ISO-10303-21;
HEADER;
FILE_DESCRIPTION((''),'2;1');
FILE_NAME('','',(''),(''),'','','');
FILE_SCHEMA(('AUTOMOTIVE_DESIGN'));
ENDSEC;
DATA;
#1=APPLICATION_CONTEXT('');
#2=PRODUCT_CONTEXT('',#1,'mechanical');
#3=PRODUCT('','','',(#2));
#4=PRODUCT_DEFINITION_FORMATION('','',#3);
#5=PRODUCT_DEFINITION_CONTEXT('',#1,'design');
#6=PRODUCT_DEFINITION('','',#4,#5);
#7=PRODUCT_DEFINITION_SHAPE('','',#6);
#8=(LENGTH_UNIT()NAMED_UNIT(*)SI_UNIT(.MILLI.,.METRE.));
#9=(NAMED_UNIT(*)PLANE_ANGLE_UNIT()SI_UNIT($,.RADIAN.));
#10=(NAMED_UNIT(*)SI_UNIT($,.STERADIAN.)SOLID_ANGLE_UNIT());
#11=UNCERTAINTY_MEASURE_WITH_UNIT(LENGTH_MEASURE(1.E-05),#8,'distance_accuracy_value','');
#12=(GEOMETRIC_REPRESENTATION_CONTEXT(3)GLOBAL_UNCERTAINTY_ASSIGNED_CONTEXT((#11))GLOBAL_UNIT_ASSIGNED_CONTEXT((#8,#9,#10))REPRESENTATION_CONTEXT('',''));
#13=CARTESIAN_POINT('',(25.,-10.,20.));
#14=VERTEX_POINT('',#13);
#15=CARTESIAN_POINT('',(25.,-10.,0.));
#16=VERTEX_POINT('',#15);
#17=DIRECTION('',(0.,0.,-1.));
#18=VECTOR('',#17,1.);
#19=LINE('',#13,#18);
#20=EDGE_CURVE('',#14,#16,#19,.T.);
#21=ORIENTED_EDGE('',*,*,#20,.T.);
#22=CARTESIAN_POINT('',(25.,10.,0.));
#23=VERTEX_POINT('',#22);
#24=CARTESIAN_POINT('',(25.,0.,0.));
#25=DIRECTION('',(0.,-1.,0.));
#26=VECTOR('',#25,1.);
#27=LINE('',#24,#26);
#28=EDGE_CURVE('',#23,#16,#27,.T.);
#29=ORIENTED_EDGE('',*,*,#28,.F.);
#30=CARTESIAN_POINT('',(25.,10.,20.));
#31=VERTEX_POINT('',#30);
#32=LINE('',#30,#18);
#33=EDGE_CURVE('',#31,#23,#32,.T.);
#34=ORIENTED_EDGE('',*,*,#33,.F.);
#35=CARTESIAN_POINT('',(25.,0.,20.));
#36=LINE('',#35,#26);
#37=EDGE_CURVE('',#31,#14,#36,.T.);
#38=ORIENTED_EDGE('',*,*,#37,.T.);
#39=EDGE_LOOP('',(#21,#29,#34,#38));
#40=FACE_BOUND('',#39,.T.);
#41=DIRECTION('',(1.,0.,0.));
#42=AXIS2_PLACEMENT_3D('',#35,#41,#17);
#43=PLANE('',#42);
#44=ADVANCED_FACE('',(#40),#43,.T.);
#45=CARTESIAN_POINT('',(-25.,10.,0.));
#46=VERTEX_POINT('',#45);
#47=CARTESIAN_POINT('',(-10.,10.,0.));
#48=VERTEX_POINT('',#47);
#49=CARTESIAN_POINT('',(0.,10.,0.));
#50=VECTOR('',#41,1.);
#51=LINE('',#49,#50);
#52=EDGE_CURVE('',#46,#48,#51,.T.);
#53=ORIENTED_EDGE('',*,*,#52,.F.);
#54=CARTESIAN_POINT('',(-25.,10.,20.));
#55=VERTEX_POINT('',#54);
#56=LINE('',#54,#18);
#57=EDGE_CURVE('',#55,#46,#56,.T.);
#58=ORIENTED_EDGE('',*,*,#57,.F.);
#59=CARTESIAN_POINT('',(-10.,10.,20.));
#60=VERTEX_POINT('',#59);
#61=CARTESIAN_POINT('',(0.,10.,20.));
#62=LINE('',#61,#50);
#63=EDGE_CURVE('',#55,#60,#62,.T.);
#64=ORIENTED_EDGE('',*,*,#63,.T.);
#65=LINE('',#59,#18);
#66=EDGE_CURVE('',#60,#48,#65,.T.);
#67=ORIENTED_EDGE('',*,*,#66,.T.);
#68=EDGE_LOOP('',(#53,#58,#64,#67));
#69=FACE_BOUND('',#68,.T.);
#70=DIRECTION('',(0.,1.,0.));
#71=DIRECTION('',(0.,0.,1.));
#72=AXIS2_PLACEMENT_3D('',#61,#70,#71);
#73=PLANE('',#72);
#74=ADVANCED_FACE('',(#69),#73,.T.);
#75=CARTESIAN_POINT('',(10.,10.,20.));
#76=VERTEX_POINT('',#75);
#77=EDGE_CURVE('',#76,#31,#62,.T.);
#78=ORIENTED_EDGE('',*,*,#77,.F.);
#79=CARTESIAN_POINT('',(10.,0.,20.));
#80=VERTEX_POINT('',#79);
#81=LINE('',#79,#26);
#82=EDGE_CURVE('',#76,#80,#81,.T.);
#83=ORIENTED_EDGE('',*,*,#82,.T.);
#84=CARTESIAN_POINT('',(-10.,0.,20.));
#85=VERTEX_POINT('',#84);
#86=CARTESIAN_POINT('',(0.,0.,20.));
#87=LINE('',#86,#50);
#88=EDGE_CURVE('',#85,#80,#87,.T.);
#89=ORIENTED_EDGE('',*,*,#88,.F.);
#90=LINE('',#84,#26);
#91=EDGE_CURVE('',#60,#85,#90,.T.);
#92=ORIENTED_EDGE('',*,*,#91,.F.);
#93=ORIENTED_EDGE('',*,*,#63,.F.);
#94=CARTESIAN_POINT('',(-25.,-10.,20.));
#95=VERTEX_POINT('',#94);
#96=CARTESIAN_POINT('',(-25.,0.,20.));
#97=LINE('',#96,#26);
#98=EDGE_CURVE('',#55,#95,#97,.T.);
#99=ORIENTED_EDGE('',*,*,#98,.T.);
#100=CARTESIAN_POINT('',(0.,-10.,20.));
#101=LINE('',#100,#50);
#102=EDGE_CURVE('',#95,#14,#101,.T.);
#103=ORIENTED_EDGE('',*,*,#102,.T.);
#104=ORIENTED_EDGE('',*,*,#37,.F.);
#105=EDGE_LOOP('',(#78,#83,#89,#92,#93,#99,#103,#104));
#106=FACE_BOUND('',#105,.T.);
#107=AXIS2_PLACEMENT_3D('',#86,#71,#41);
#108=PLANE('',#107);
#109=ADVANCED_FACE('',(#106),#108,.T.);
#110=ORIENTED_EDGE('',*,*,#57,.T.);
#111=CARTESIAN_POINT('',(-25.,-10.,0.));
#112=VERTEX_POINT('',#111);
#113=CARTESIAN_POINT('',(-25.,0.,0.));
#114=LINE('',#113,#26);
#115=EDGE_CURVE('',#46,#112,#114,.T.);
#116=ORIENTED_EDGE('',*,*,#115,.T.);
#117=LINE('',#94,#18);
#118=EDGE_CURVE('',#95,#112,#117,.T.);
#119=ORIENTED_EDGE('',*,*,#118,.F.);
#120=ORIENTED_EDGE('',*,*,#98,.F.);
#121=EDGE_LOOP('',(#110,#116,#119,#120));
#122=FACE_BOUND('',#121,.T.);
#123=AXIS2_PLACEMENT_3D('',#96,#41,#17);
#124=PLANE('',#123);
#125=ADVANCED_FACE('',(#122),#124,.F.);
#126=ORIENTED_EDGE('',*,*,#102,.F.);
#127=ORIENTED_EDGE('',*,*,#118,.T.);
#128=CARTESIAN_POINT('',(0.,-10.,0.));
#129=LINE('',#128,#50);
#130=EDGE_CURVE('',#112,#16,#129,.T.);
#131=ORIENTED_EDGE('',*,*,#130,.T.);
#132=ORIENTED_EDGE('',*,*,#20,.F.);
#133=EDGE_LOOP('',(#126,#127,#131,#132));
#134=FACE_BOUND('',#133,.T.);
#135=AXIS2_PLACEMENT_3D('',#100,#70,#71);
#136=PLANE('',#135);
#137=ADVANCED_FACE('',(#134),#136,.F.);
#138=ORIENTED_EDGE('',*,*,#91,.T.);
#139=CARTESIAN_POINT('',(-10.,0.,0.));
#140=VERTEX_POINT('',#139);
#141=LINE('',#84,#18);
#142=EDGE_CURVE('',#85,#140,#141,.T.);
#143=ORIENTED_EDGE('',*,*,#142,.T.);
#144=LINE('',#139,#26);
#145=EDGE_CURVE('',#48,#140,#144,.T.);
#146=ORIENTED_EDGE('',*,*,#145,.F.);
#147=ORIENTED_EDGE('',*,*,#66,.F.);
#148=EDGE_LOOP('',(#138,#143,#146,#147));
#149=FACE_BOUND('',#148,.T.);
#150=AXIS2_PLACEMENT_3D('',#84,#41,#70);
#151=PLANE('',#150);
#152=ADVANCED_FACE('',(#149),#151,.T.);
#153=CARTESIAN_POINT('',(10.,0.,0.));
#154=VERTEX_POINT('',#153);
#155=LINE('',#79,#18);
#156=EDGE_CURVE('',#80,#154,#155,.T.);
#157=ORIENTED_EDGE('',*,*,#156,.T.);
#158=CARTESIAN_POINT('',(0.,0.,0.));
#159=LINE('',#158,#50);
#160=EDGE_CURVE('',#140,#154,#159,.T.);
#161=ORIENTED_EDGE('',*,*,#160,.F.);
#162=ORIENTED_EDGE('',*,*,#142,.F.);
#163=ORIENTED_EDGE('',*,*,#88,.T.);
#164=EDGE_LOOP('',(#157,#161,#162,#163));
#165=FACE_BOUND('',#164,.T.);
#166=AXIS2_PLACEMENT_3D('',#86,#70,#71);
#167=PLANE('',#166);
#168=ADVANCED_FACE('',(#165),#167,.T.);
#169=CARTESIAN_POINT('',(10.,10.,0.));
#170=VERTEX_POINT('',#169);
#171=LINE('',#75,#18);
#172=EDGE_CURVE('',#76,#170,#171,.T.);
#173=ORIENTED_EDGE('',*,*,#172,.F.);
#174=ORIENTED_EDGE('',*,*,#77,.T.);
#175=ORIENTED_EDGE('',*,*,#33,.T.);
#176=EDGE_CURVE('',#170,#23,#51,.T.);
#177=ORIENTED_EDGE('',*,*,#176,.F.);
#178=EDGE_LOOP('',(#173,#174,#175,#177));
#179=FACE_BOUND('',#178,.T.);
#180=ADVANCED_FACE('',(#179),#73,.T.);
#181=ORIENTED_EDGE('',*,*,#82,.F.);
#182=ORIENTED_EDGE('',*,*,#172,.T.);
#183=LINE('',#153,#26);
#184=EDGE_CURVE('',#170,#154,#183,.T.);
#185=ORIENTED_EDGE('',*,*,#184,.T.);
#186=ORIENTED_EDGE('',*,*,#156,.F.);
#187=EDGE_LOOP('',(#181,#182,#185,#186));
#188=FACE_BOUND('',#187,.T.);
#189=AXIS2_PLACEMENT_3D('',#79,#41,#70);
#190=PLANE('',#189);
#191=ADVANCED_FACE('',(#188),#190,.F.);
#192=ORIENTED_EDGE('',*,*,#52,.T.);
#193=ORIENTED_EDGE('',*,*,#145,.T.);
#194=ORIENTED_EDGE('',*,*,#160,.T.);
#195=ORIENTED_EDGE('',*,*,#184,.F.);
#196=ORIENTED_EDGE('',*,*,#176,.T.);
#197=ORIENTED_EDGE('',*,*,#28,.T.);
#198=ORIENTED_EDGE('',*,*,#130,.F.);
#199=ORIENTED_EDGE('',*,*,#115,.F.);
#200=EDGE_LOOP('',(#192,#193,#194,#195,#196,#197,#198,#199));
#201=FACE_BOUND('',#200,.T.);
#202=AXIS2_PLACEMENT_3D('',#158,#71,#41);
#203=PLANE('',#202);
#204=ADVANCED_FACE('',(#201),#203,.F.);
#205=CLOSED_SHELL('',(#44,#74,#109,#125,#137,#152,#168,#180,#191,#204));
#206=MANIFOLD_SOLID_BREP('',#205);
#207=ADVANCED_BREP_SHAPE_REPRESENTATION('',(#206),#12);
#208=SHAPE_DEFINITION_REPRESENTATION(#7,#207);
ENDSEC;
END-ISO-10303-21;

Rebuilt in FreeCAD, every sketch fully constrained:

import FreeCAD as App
import Part
import Sketcher
from FreeCAD import Vector

doc = App.newDocument("Part")
body = doc.addObject("PartDesign::Body", "Body")

# Sketch on XY plane
sketch1 = body.newObject("Sketcher::SketchObject", "Sketch")
sketch1.AttachmentSupport = (doc.getObject("XY_Plane"), [""])
sketch1.MapMode = "FlatFace"
sketch1.addGeometry(Part.LineSegment(Vector(-10, 10, 0), Vector(-25, 10, 0)), False)
sketch1.addGeometry(Part.LineSegment(Vector(-25, 10, 0), Vector(-25, -10, 0)), False)
sketch1.addGeometry(Part.LineSegment(Vector(-25, -10, 0), Vector(25, -10, 0)), False)
sketch1.addGeometry(Part.LineSegment(Vector(25, -10, 0), Vector(25, 10, 0)), False)
sketch1.addGeometry(Part.LineSegment(Vector(25, 10, 0), Vector(10, 10, 0)), False)
sketch1.addGeometry(Part.LineSegment(Vector(10, 10, 0), Vector(10, 0, 0)), False)
sketch1.addGeometry(Part.LineSegment(Vector(10, 0, 0), Vector(-10, 0, 0)), False)
sketch1.addGeometry(Part.LineSegment(Vector(-10, 0, 0), Vector(-10, 10, 0)), False)
sketch1.addConstraint(Sketcher.Constraint("Coincident", 0, 2, 1, 1))
sketch1.addConstraint(Sketcher.Constraint("Coincident", 1, 2, 2, 1))
sketch1.addConstraint(Sketcher.Constraint("Coincident", 2, 2, 3, 1))
sketch1.addConstraint(Sketcher.Constraint("Coincident", 3, 2, 4, 1))
sketch1.addConstraint(Sketcher.Constraint("Coincident", 4, 2, 5, 1))
sketch1.addConstraint(Sketcher.Constraint("Coincident", 5, 2, 6, 1))
sketch1.addConstraint(Sketcher.Constraint("Coincident", 6, 2, 7, 1))
sketch1.addConstraint(Sketcher.Constraint("Coincident", 7, 2, 0, 1))
sketch1.addConstraint(Sketcher.Constraint("Horizontal", 0))
sketch1.addConstraint(Sketcher.Constraint("Vertical", 1))
sketch1.addConstraint(Sketcher.Constraint("Horizontal", 2))
sketch1.addConstraint(Sketcher.Constraint("Vertical", 3))
sketch1.addConstraint(Sketcher.Constraint("Horizontal", 4))
sketch1.addConstraint(Sketcher.Constraint("Vertical", 5))
sketch1.addConstraint(Sketcher.Constraint("Horizontal", 6))
sketch1.addConstraint(Sketcher.Constraint("Vertical", 7))
sketch1.addConstraint(Sketcher.Constraint("Symmetric", 0, 2, 2, 2, -1, 1))
sketch1.addConstraint(Sketcher.Constraint("Symmetric", 5, 2, 6, 2, -1, 1))
sketch1.addConstraint(Sketcher.Constraint("Horizontal", 0, 2, 3, 2))
sketch1.addConstraint(Sketcher.Constraint("Equal", 6, 1))
sketch1.addConstraint(Sketcher.Constraint("DistanceX", 0, 2, 0, 1, 15.0))
sketch1.addConstraint(Sketcher.Constraint("DistanceX", 2, 1, 2, 2, 50.0))
pad1 = body.newObject("PartDesign::Pad", "Pad")
pad1.Profile = sketch1
pad1.Length = 20

doc.recompute()
